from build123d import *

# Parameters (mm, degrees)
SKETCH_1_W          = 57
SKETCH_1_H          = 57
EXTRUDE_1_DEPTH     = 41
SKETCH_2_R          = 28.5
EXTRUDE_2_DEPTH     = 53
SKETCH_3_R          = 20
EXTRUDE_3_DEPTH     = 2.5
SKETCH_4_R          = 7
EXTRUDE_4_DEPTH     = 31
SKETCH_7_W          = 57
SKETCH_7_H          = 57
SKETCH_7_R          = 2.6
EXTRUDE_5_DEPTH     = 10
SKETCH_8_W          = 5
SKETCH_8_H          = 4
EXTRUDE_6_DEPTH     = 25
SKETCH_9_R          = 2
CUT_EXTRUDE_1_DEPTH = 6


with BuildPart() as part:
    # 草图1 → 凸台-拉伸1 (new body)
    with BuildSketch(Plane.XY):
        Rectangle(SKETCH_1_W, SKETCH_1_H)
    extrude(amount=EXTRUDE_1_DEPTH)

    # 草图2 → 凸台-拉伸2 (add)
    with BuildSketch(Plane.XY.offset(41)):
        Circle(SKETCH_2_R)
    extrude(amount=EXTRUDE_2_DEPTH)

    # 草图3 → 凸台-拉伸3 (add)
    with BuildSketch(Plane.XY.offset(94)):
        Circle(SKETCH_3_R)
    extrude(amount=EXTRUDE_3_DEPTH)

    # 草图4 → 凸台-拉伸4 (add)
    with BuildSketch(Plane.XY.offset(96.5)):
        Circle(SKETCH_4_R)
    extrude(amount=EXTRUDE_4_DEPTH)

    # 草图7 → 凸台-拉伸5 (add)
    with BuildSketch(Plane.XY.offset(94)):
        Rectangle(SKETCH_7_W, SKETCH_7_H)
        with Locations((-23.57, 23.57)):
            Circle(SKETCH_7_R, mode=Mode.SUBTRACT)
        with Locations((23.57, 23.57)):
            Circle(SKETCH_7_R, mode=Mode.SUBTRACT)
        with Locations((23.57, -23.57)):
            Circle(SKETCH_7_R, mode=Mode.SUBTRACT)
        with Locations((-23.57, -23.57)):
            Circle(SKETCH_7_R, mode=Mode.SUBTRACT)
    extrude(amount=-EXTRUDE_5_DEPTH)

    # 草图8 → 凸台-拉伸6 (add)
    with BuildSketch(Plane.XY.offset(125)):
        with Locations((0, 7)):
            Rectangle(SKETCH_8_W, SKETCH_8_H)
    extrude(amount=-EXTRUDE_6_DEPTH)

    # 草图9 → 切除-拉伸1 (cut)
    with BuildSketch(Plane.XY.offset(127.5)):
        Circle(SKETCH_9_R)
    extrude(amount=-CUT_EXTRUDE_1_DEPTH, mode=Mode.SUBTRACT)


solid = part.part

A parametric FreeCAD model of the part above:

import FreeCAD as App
import Part
import Sketcher
Q = App.Units.Quantity

doc = App.newDocument("Part")
body = doc.addObject("PartDesign::Body", "Body")

sketch1 = body.newObject("Sketcher::SketchObject", "Sketch")
sketch1.AttachmentSupport = (doc.getObject("XY_Plane"), [""])
sketch1.MapMode = "FlatFace"
sketch1.addGeometry(Part.LineSegment(App.Vector(-28.5, 28.5, 0), App.Vector(-28.5, -28.5, 0)), False)
sketch1.addGeometry(Part.LineSegment(App.Vector(-28.5, -28.5, 0), App.Vector(28.5, -28.5, 0)), False)
sketch1.addGeometry(Part.LineSegment(App.Vector(28.5, -28.5, 0), App.Vector(28.5, 28.5, 0)), False)
sketch1.addGeometry(Part.LineSegment(App.Vector(28.5, 28.5, 0), App.Vector(-28.5, 28.5, 0)), False)
sketch1.addConstraint(Sketcher.Constraint("Coincident", 0, 2, 1, 1))
sketch1.addConstraint(Sketcher.Constraint("Coincident", 1, 2, 2, 1))
sketch1.addConstraint(Sketcher.Constraint("Coincident", 2, 2, 3, 1))
sketch1.addConstraint(Sketcher.Constraint("Coincident", 3, 2, 0, 1))
sketch1.addConstraint(Sketcher.Constraint("Vertical", 0))
sketch1.addConstraint(Sketcher.Constraint("Horizontal", 1))
sketch1.addConstraint(Sketcher.Constraint("Vertical", 2))
sketch1.addConstraint(Sketcher.Constraint("Horizontal", 3))
sketch1.addConstraint(Sketcher.Constraint("Symmetric", 0, 2, 2, 2, -1, 1))
sketch1.addConstraint(Sketcher.Constraint("Equal", 3, 0))
sketch1.addConstraint(Sketcher.Constraint("DistanceX", 1, 1, 1, 2, Q("57 mm")))
pad1 = body.newObject("PartDesign::Pad", "Pad")
pad1.Profile = sketch1
pad1.Length = 41

sketch2 = body.newObject("Sketcher::SketchObject", "Sketch001")
sketch2.AttachmentSupport = (doc.getObject("XY_Plane"), [""])
sketch2.MapMode = "FlatFace"
sketch2.AttachmentOffset = App.Placement(App.Vector(0, 0, 41), App.Rotation())
sketch2.addGeometry(Part.Circle(App.Vector(0, 0, 0), App.Vector(0, 0, 1), 28.5), False)
sketch2.addConstraint(Sketcher.Constraint("Coincident", 0, 3, -1, 1))
sketch2.addConstraint(Sketcher.Constraint("Diameter", 0, Q("57 mm")))
pad2 = body.newObject("PartDesign::Pad", "Pad001")
pad2.Profile = sketch2
pad2.Length = 53

sketch3 = body.newObject("Sketcher::SketchObject", "Sketch002")
sketch3.AttachmentSupport = (doc.getObject("XY_Plane"), [""])
sketch3.MapMode = "FlatFace"
sketch3.AttachmentOffset = App.Placement(App.Vector(0, 0, 94), App.Rotation())
sketch3.addGeometry(Part.Circle(App.Vector(0, 0, 0), App.Vector(0, 0, 1), 20), False)
sketch3.addConstraint(Sketcher.Constraint("Coincident", 0, 3, -1, 1))
sketch3.addConstraint(Sketcher.Constraint("Diameter", 0, Q("40 mm")))
pad3 = body.newObject("PartDesign::Pad", "Pad002")
pad3.Profile = sketch3
pad3.Length = 2.5

sketch4 = body.newObject("Sketcher::SketchObject", "Sketch003")
sketch4.AttachmentSupport = (doc.getObject("XY_Plane"), [""])
sketch4.MapMode = "FlatFace"
sketch4.AttachmentOffset = App.Placement(App.Vector(0, 0, 96.5), App.Rotation())
sketch4.addGeometry(Part.Circle(App.Vector(0, 0, 0), App.Vector(0, 0, 1), 7), False)
sketch4.addConstraint(Sketcher.Constraint("Coincident", 0, 3, -1, 1))
sketch4.addConstraint(Sketcher.Constraint("Diameter", 0, Q("14 mm")))
pad4 = body.newObject("PartDesign::Pad", "Pad003")
pad4.Profile = sketch4
pad4.Length = 31

sketch5 = body.newObject("Sketcher::SketchObject", "Sketch004")
sketch5.AttachmentSupport = (doc.getObject("XY_Plane"), [""])
sketch5.MapMode = "FlatFace"
sketch5.AttachmentOffset = App.Placement(App.Vector(0, 0, 94), App.Rotation())
sketch5.addGeometry(Part.LineSegment(App.Vector(-28.5, 28.5, 0), App.Vector(-28.5, -28.5, 0)), False)
sketch5.addGeometry(Part.LineSegment(App.Vector(-28.5, -28.5, 0), App.Vector(28.5, -28.5, 0)), False)
sketch5.addGeometry(Part.LineSegment(App.Vector(28.5, -28.5, 0), App.Vector(28.5, 28.5, 0)), False)
sketch5.addGeometry(Part.LineSegment(App.Vector(28.5, 28.5, 0), App.Vector(-28.5, 28.5, 0)), False)
sketch5.addGeometry(Part.Circle(App.Vector(-23.57, -23.57, 0), App.Vector(0, 0, 1), 2.6), False)
sketch5.addGeometry(Part.Circle(App.Vector(23.57, -23.57, 0), App.Vector(0, 0, 1), 2.6), False)
sketch5.addGeometry(Part.Circle(App.Vector(-23.57, 23.57, 0), App.Vector(0, 0, 1), 2.6), False)
sketch5.addGeometry(Part.Circle(App.Vector(23.57, 23.57, 0), App.Vector(0, 0, 1), 2.6), False)
sketch5.addConstraint(Sketcher.Constraint("Coincident", 0, 2, 1, 1))
sketch5.addConstraint(Sketcher.Constraint("Coincident", 1, 2, 2, 1))
sketch5.addConstraint(Sketcher.Constraint("Coincident", 2, 2, 3, 1))
sketch5.addConstraint(Sketcher.Constraint("Coincident", 3, 2, 0, 1))
sketch5.addConstraint(Sketcher.Constraint("Vertical", 0))
sketch5.addConstraint(Sketcher.Constraint("Horizontal", 1))
sketch5.addConstraint(Sketcher.Constraint("Vertical", 2))
sketch5.addConstraint(Sketcher.Constraint("Horizontal", 3))
sketch5.addConstraint(Sketcher.Constraint("Equal", 4, 5))
sketch5.addConstraint(Sketcher.Constraint("Equal", 5, 6))
sketch5.addConstraint(Sketcher.Constraint("Equal", 6, 7))
sketch5.addConstraint(Sketcher.Constraint("Symmetric", 5, 3, 6, 3, -1, 1))
sketch5.addConstraint(Sketcher.Constraint("Symmetric", 4, 3, 7, 3, -1, 1))
sketch5.addConstraint(Sketcher.Constraint("Symmetric", 0, 2, 2, 2, -1, 1))
sketch5.addConstraint(Sketcher.Constraint("Symmetric", 4, 3, 5, 3, -2))
sketch5.addConstraint(Sketcher.Constraint("Equal", 3, 0))
sketch5.addConstraint(Sketcher.Constraint("Diameter", 4, Q("5.2 mm")))
sketch5.addConstraint(Sketcher.Constraint("DistanceX", 1, 1, 1, 2, Q("57 mm")))
sketch5.addConstraint(Sketcher.Constraint("DistanceX", 4, 3, -1, 1, Q("23.57 mm")))
sketch5.addConstraint(Sketcher.Constraint("DistanceY", 4, 3, -1, 1, Q("23.57 mm")))
pad5 = body.newObject("PartDesign::Pad", "Pad004")
pad5.Profile = sketch5
pad5.Length = 10
pad5.Reversed = True

sketch6 = body.newObject("Sketcher::SketchObject", "Sketch005")
sketch6.AttachmentSupport = (doc.getObject("XY_Plane"), [""])
sketch6.MapMode = "FlatFace"
sketch6.AttachmentOffset = App.Placement(App.Vector(0, 0, 125), App.Rotation())
sketch6.addGeometry(Part.LineSegment(App.Vector(-2.5, 9, 0), App.Vector(-2.5, 5, 0)), False)
sketch6.addGeometry(Part.LineSegment(App.Vector(-2.5, 5, 0), App.Vector(2.5, 5, 0)), False)
sketch6.addGeometry(Part.LineSegment(App.Vector(2.5, 5, 0), App.Vector(2.5, 9, 0)), False)
sketch6.addGeometry(Part.LineSegment(App.Vector(2.5, 9, 0), App.Vector(-2.5, 9, 0)), False)
sketch6.addConstraint(Sketcher.Constraint("Coincident", 0, 2, 1, 1))
sketch6.addConstraint(Sketcher.Constraint("Coincident", 1, 2, 2, 1))
sketch6.addConstraint(Sketcher.Constraint("Coincident", 2, 2, 3, 1))
sketch6.addConstraint(Sketcher.Constraint("Coincident", 3, 2, 0, 1))
sketch6.addConstraint(Sketcher.Constraint("Vertical", 0))
sketch6.addConstraint(Sketcher.Constraint("Horizontal", 1))
sketch6.addConstraint(Sketcher.Constraint("Vertical", 2))
sketch6.addConstraint(Sketcher.Constraint("Horizontal", 3))
sketch6.addConstraint(Sketcher.Constraint("DistanceX", 1, 1, 1, 2, Q("5 mm")))
sketch6.addConstraint(Sketcher.Constraint("DistanceY", 0, 2, 0, 1, Q("4 mm")))
sketch6.addConstraint(Sketcher.Constraint("DistanceY", -1, 1, 0, 2, Q("5 mm")))
sketch6.addConstraint(Sketcher.Constraint("DistanceX", 0, 2, -1, 1, Q("2.5 mm")))
pad6 = body.newObject("PartDesign::Pad", "Pad005")
pad6.Profile = sketch6
pad6.Length = 25
pad6.Reversed = True

sketch7 = body.newObject("Sketcher::SketchObject", "Sketch006")
sketch7.AttachmentSupport = (doc.getObject("XY_Plane"), [""])
sketch7.MapMode = "FlatFace"
sketch7.AttachmentOffset = App.Placement(App.Vector(0, 0, 127.5), App.Rotation())
sketch7.addGeometry(Part.Circle(App.Vector(0, 0, 0), App.Vector(0, 0, 1), 2), False)
sketch7.addConstraint(Sketcher.Constraint("Coincident", 0, 3, -1, 1))
sketch7.addConstraint(Sketcher.Constraint("Diameter", 0, Q("4 mm")))
pocket1 = body.newObject("PartDesign::Pocket", "Pocket")
pocket1.Profile = sketch7
pocket1.Length = 6

doc.recompute()
